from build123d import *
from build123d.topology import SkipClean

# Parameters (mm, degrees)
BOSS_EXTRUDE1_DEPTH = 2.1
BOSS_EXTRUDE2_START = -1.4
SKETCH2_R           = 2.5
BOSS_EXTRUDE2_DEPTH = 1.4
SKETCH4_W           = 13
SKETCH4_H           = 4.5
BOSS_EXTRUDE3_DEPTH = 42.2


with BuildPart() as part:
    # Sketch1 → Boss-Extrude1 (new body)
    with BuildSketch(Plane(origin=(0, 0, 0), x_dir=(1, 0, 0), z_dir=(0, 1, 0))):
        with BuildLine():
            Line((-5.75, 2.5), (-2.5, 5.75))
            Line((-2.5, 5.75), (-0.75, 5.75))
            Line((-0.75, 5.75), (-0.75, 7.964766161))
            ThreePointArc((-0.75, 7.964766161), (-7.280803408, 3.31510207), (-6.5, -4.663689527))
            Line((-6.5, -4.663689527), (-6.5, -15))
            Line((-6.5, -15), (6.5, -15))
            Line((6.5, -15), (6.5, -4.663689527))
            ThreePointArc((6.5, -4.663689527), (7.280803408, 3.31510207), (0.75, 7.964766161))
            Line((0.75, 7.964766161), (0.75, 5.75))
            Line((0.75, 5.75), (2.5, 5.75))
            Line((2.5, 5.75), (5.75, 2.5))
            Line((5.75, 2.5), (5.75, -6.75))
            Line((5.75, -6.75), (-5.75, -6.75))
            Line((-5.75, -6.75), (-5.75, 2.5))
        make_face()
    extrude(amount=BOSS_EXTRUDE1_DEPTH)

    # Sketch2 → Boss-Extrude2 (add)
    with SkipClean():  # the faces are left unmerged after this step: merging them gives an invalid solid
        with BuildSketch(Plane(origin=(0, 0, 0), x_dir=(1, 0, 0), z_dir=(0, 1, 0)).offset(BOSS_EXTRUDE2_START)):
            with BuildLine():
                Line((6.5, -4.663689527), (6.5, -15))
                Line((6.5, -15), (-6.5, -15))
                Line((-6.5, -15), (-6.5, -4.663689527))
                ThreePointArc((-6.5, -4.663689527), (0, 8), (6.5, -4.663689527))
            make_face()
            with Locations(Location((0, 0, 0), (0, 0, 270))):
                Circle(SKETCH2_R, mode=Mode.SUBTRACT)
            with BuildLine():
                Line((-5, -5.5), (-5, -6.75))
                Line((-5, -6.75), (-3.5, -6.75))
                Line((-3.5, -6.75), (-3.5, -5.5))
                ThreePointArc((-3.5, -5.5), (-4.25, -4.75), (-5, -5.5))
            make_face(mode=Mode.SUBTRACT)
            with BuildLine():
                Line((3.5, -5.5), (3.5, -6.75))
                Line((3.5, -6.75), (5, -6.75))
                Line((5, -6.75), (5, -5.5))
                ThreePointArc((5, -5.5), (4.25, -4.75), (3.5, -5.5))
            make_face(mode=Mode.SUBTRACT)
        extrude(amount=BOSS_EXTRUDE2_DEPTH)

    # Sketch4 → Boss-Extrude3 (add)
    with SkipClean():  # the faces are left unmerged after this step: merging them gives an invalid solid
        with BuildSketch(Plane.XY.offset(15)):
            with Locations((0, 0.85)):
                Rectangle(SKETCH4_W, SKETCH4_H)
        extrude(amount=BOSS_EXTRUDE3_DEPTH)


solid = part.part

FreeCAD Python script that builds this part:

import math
import FreeCAD as App
import Part
import Sketcher

V = App.Vector
Q = App.Units.Quantity


def add_polygon(sketch, points):
    """Adds a closed chain of lines whose ends are joined by coincident constraints."""
    first, n = sketch.GeometryCount, len(points)
    for a, b in zip(points, points[1:] + points[:1]):
        sketch.addGeometry(Part.LineSegment(App.Vector(*a, 0), App.Vector(*b, 0)), False)
    for i in range(n):
        sketch.addConstraint(Sketcher.Constraint("Coincident", first + i, 2, first + (i + 1) % n, 1))

doc = App.newDocument("Part")
body = doc.addObject("PartDesign::Body", "Body")

# Sketch on XZ plane
sketch1 = body.newObject("Sketcher::SketchObject", "Sketch")
sketch1.AttachmentSupport = (doc.getObject("XZ_Plane"), [""])
sketch1.MapMode = "FlatFace"
sketch1.addGeometry([
    Part.LineSegment(V(-5.8, -2.5, 0), V(-2.5, -5.8, 0)),  # 0
    Part.LineSegment(V(-2.5, -5.8, 0), V(-0.8, -5.8, 0)),  # 1
    Part.LineSegment(V(-0.8, -5.8, 0), V(-0.8, -8, 0)),  # 2
    Part.ArcOfCircle(Part.Circle(V(0, 0, 0), V(0, 0, 1), 8), math.radians(144), math.radians(265)),  # 3
    Part.LineSegment(V(-6.5, 4.7, 0), V(-6.5, 15, 0)),  # 4
    Part.LineSegment(V(-6.5, 15, 0), V(6.5, 15, 0)),  # 5
    Part.LineSegment(V(6.5, 15, 0), V(6.5, 4.7, 0)),  # 6
    Part.ArcOfCircle(Part.Circle(V(0, 0, 0), V(0, 0, 1), 8), math.radians(-85), math.radians(36)),  # 7
    Part.LineSegment(V(0.8, -8, 0), V(0.8, -5.8, 0)),  # 8
    Part.LineSegment(V(0.8, -5.8, 0), V(2.5, -5.8, 0)),  # 9
    Part.LineSegment(V(2.5, -5.8, 0), V(5.8, -2.5, 0)),  # 10
    Part.LineSegment(V(5.8, -2.5, 0), V(5.8, 6.8, 0)),  # 11
    Part.LineSegment(V(5.8, 6.8, 0), V(-5.8, 6.8, 0)),  # 12
    Part.LineSegment(V(-5.8, 6.8, 0), V(-5.8, -2.5, 0)),  # 13
], False)
sketch1.addConstraint([
    Sketcher.Constraint("Coincident", 0, 2, 1, 1),
    Sketcher.Constraint("Coincident", 1, 2, 2, 1),
    Sketcher.Constraint("Coincident", 2, 2, 3, 2),
    Sketcher.Constraint("Coincident", 3, 1, 4, 1),
    Sketcher.Constraint("Coincident", 4, 2, 5, 1),
    Sketcher.Constraint("Coincident", 5, 2, 6, 1),
    Sketcher.Constraint("Coincident", 6, 2, 7, 2),
    Sketcher.Constraint("Coincident", 7, 1, 8, 1),
    Sketcher.Constraint("Coincident", 8, 2, 9, 1),
    Sketcher.Constraint("Coincident", 9, 2, 10, 1),
    Sketcher.Constraint("Coincident", 10, 2, 11, 1),
    Sketcher.Constraint("Coincident", 11, 2, 12, 1),
    Sketcher.Constraint("Coincident", 12, 2, 13, 1),
    Sketcher.Constraint("Coincident", 13, 2, 0, 1),
    Sketcher.Constraint("Horizontal", 1),
    Sketcher.Constraint("Vertical", 2),
    Sketcher.Constraint("Vertical", 4),
    Sketcher.Constraint("Horizontal", 5),
    Sketcher.Constraint("Vertical", 6),
    Sketcher.Constraint("Vertical", 8),
    Sketcher.Constraint("Horizontal", 9),
    Sketcher.Constraint("Vertical", 11),
    Sketcher.Constraint("Horizontal", 12),
    Sketcher.Constraint("Vertical", 13),
    Sketcher.Constraint("Coincident", 3, 3, -1, 1),
    Sketcher.Constraint("Coincident", 7, 3, -1, 1),
    Sketcher.Constraint("Equal", 3, 7),
    Sketcher.Constraint("Symmetric", 1, 2, 8, 2, -2),
    Sketcher.Constraint("Symmetric", 10, 2, 13, 2, -2),
    Sketcher.Constraint("Perpendicular", 0, 10),
    Sketcher.Constraint("Horizontal", 3, 1, 6, 2),
    Sketcher.Constraint("Equal", 1, 9),
    Sketcher.Constraint("Radius", 3, Q("8 mm")),
    Sketcher.Constraint("DistanceX", 5, 1, 5, 2, Q("13 mm")),
    Sketcher.Constraint("DistanceX", 12, 2, 12, 1, Q("11.5 mm")),
    Sketcher.Constraint("DistanceY", -1, 1, 4, 2, Q("15 mm")),
    Sketcher.Constraint("DistanceX", 3, 1, 0, 2, Q("4 mm")),
    Sketcher.Constraint("DistanceX", 8, 2, 10, 2, Q("5 mm")),
    Sketcher.Constraint("DistanceY", 11, 1, 11, 2, Q("9.25 mm")),
    Sketcher.Constraint("DistanceY", 10, 2, -1, 1, Q("2.5 mm")),
])
pad1 = body.newObject("PartDesign::Pad", "Pad")
pad1.Profile = sketch1
pad1.Length = 2.1
pad1.Reversed = True

# Sketch on XZ plane
sketch2 = body.newObject("Sketcher::SketchObject", "Sketch001")
sketch2.AttachmentSupport = (doc.getObject("XZ_Plane"), [""])
sketch2.MapMode = "FlatFace"
sketch2.AttachmentOffset = App.Placement(V(0, 0, 1.4), App.Rotation())
sketch2.addGeometry([
    Part.LineSegment(V(6.5, 15, 0), V(6.5, 4.7, 0)),  # 0
    Part.ArcOfCircle(Part.Circle(V(0, 0, 0), V(0, 0, 1), 8), math.radians(144), math.radians(396)),  # 1
    Part.LineSegment(V(-6.5, 4.7, 0), V(-6.5, 15, 0)),  # 2
    Part.LineSegment(V(-6.5, 15, 0), V(6.5, 15, 0)),  # 3
    Part.ArcOfCircle(Part.Circle(V(4.2, 5.5, 0), V(0, 0, 1), 0.8), math.radians(180), math.radians(360)),  # 4
    Part.LineSegment(V(5, 5.5, 0), V(5, 6.8, 0)),  # 5
    Part.LineSegment(V(5, 6.8, 0), V(3.5, 6.8, 0)),  # 6
    Part.LineSegment(V(3.5, 6.8, 0), V(3.5, 5.5, 0)),  # 7
    Part.ArcOfCircle(Part.Circle(V(-4.2, 5.5, 0), V(0, 0, 1), 0.8), math.radians(180), math.radians(360)),  # 8
    Part.LineSegment(V(-3.5, 5.5, 0), V(-3.5, 6.8, 0)),  # 9
    Part.LineSegment(V(-3.5, 6.8, 0), V(-5, 6.8, 0)),  # 10
    Part.LineSegment(V(-5, 6.8, 0), V(-5, 5.5, 0)),  # 11
    Part.Circle(V(0, 0, 0), V(0, 0, 1), 2.5),  # 12
], False)
sketch2.addConstraint([
    Sketcher.Constraint("Coincident", 0, 2, 1, 2),
    Sketcher.Constraint("Coincident", 1, 1, 2, 1),
    Sketcher.Constraint("Coincident", 2, 2, 3, 1),
    Sketcher.Constraint("Coincident", 3, 2, 0, 1),
    Sketcher.Constraint("Tangent", 4, 2, 5, 1),
    Sketcher.Constraint("Coincident", 5, 2, 6, 1),
    Sketcher.Constraint("Coincident", 6, 2, 7, 1),
    Sketcher.Constraint("Tangent", 7, 2, 4, 1),
    Sketcher.Constraint("Tangent", 8, 2, 9, 1),
    Sketcher.Constraint("Coincident", 9, 2, 10, 1),
    Sketcher.Constraint("Coincident", 10, 2, 11, 1),
    Sketcher.Constraint("Tangent", 11, 2, 8, 1),
    Sketcher.Constraint("Vertical", 0),
    Sketcher.Constraint("Vertical", 2),
    Sketcher.Constraint("Horizontal", 3),
    Sketcher.Constraint("Vertical", 5),
    Sketcher.Constraint("Horizontal", 6),
    Sketcher.Constraint("Vertical", 7),
    Sketcher.Constraint("Vertical", 9),
    Sketcher.Constraint("Horizontal", 10),
    Sketcher.Constraint("Vertical", 11),
    Sketcher.Constraint("Coincident", 1, 3, -1, 1),
    Sketcher.Constraint("Coincident", 12, 3, -1, 1),
    Sketcher.Constraint("Equal", 4, 8),
    Sketcher.Constraint("Symmetric", 4, 3, 8, 3, -2),
    Sketcher.Constraint("Horizontal", 0, 2, 1, 1),
    Sketcher.Constraint("Horizontal", 6, 2, 9, 2),
    Sketcher.Constraint("Diameter", 12, Q("5 mm")),
    Sketcher.Constraint("Radius", 1, Q("8 mm")),
    Sketcher.Constraint("DistanceX", 3, 1, 3, 2, Q("13 mm")),
    Sketcher.Constraint("Radius", 4, Q("0.75 mm")),
    Sketcher.Constraint("DistanceY", -1, 1, 2, 2, Q("15 mm")),
    Sketcher.Constraint("DistanceX", -1, 1, 4, 2, Q("5 mm")),
    Sketcher.Constraint("DistanceY", 5, 1, 5, 2, Q("1.25 mm")),
    Sketcher.Constraint("DistanceY", -1, 1, 4, 3, Q("5.5 mm")),
])
pad2 = body.newObject("PartDesign::Pad", "Pad001")
pad2.Profile = sketch2
pad2.Length = 1.4
pad2.Reversed = True

# Sketch on XY plane
sketch3 = body.newObject("Sketcher::SketchObject", "Sketch002")
sketch3.AttachmentSupport = (doc.getObject("XY_Plane"), [""])
sketch3.MapMode = "FlatFace"
sketch3.AttachmentOffset = App.Placement(V(0, 0, 15), App.Rotation())
add_polygon(sketch3, [(-6.5, 3.1), (-6.5, -1.4), (6.5, -1.4), (6.5, 3.1)])  # lines 0-3
sketch3.addConstraint([
    Sketcher.Constraint("Vertical", 0),
    Sketcher.Constraint("Horizontal", 1),
    Sketcher.Constraint("Vertical", 2),
    Sketcher.Constraint("Horizontal", 3),
    Sketcher.Constraint("DistanceX", 1, 1, 1, 2, Q("13 mm")),
    Sketcher.Constraint("DistanceY", 0, 2, 0, 1, Q("4.5 mm")),
    Sketcher.Constraint("DistanceX", 0, 2, -1, 1, Q("6.5 mm")),
    Sketcher.Constraint("DistanceY", 0, 2, -1, 1, Q("1.4 mm")),
])
pad3 = body.newObject("PartDesign::Pad", "Pad002")
pad3.Profile = sketch3
pad3.Length = 42.2

doc.recompute()
